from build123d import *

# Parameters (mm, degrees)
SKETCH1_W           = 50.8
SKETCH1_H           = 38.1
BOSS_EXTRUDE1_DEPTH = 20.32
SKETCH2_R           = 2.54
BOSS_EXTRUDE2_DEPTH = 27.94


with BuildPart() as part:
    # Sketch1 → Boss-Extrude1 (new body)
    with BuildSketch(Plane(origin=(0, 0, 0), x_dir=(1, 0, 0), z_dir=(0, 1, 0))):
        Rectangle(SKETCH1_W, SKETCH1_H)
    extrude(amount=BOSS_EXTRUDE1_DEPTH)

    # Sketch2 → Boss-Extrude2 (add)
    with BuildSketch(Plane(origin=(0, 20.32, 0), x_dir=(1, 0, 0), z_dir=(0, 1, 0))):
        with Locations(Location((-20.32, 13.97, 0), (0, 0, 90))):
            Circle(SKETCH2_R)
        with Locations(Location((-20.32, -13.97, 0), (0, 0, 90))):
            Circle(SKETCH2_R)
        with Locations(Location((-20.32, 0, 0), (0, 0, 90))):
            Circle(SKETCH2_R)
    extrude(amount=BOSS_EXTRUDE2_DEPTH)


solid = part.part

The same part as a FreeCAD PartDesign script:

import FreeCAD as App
import Part
import Sketcher
from FreeCAD import Vector
Q = App.Units.Quantity

doc = App.newDocument("Part")
body = doc.addObject("PartDesign::Body", "Body")

sketch1 = body.newObject("Sketcher::SketchObject", "Sketch")
sketch1.AttachmentSupport = (doc.getObject("XZ_Plane"), [""])
sketch1.MapMode = "FlatFace"
sketch1.addGeometry([
    Part.LineSegment(Vector(-25, -19, 0), Vector(-25, 19, 0)),
    Part.LineSegment(Vector(-25, 19, 0), Vector(25, 19, 0)),
    Part.LineSegment(Vector(25, 19, 0), Vector(25, -19, 0)),
    Part.LineSegment(Vector(25, -19, 0), Vector(-25, -19, 0)),
], False)
sketch1.addConstraint([
    Sketcher.Constraint("Coincident", 0, 2, 1, 1),
    Sketcher.Constraint("Coincident", 1, 2, 2, 1),
    Sketcher.Constraint("Coincident", 2, 2, 3, 1),
    Sketcher.Constraint("Coincident", 3, 2, 0, 1),
    Sketcher.Constraint("Vertical", 0),
    Sketcher.Constraint("Horizontal", 1),
    Sketcher.Constraint("Vertical", 2),
    Sketcher.Constraint("Horizontal", 3),
    Sketcher.Constraint("Symmetric", 0, 2, 2, 2, -1, 1),
    Sketcher.Constraint("DistanceX", 1, 1, 1, 2, Q("2 in")),
    Sketcher.Constraint("DistanceY", 0, 1, 0, 2, Q("1.5 in")),
])
pad1 = body.newObject("PartDesign::Pad", "Pad")
pad1.Profile = sketch1
pad1.Length = Q("0.8 in")
pad1.Reversed = True

sketch2 = body.newObject("Sketcher::SketchObject", "Sketch001")
sketch2.AttachmentSupport = (doc.getObject("XZ_Plane"), [""])
sketch2.MapMode = "FlatFace"
sketch2.AttachmentOffset = App.Placement(Vector(0, 0, -0.8 * 25.4), App.Rotation())
sketch2.addGeometry([
    Part.Circle(Vector(-20.3, -14, 0), Vector(0, 0, 1), 2.5),
    Part.Circle(Vector(-20.3, 14, 0), Vector(0, 0, 1), 2.5),
    Part.Circle(Vector(-20.3, 0, 0), Vector(0, 0, 1), 2.5),
], False)
sketch2.addConstraint([
    Sketcher.Constraint("Equal", 0, 1),
    Sketcher.Constraint("Equal", 1, 2),
    Sketcher.Constraint("Symmetric", 0, 3, 1, 3, -1),
    Sketcher.Constraint("PointOnObject", 2, 3, -1),
    Sketcher.Constraint("Vertical", 1, 3, 2, 3),
    Sketcher.Constraint("Diameter", 0, Q("0.2 in")),
    Sketcher.Constraint("DistanceX", 0, 3, -1, 1, Q("0.8 in")),
    Sketcher.Constraint("DistanceY", 0, 3, 1, 3, Q("1.1 in")),
])
pad2 = body.newObject("PartDesign::Pad", "Pad001")
pad2.Profile = sketch2
pad2.Length = Q("1.1 in")
pad2.Reversed = True

doc.recompute()
